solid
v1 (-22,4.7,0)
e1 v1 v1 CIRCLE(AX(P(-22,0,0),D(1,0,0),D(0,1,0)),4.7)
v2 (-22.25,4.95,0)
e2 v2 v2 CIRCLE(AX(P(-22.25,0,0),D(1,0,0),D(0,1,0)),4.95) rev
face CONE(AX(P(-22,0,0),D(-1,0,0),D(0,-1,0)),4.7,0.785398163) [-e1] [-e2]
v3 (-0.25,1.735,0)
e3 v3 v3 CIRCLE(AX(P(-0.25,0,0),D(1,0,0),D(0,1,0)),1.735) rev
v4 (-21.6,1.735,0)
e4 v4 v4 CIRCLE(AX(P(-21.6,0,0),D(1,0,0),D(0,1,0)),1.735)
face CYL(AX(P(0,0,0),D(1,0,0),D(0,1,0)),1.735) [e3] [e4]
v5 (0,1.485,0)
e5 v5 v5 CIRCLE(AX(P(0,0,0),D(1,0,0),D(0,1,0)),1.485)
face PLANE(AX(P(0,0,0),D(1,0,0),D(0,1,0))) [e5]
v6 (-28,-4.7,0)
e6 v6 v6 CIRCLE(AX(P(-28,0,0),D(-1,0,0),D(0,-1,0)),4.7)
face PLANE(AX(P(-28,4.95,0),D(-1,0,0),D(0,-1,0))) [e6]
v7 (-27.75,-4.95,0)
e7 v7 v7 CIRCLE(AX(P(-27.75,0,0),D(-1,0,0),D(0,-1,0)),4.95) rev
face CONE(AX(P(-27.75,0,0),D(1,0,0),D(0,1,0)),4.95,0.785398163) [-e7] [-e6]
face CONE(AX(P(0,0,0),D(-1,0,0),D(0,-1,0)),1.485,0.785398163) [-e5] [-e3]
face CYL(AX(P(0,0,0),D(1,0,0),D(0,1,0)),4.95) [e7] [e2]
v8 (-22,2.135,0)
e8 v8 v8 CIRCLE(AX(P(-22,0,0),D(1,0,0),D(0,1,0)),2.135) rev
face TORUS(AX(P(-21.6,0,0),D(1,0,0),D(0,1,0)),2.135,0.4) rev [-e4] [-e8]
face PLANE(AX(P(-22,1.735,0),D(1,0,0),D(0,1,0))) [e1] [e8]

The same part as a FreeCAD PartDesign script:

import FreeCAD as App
import Part
import Sketcher


def edges_at(feature, points):
    """Names of the edges that pass closest to the given points."""
    edges = feature.Shape.Edges
    near = lambda p: min(range(len(edges)), key=lambda i: edges[i].distToShape(Part.Vertex(*p))[0])
    return sorted({f"Edge{near(p) + 1}" for p in points})


def add_polygon(sketch, points):
    """Adds a closed chain of lines whose ends are joined by coincident constraints."""
    first, n = sketch.GeometryCount, len(points)
    for a, b in zip(points, points[1:] + points[:1]):
        sketch.addGeometry(Part.LineSegment(App.Vector(*a, 0), App.Vector(*b, 0)), False)
    for i in range(n):
        sketch.addConstraint(Sketcher.Constraint("Coincident", first + i, 2, first + (i + 1) % n, 1))

doc = App.newDocument("Part")
body = doc.addObject("PartDesign::Body", "Body")

sketch1 = body.newObject("Sketcher::SketchObject", "Sketch")
sketch1.AttachmentSupport = (doc.getObject("XY_Plane"), [""])
sketch1.MapMode = "FlatFace"
add_polygon(sketch1, [(0, 0), (0, 1.735), (-22, 1.735), (-22, 4.95), (-28, 4.95), (-28, 0)])
sketch1.addConstraint([
    Sketcher.Constraint("Vertical", 0),
    Sketcher.Constraint("Horizontal", 1),
    Sketcher.Constraint("Vertical", 2),
    Sketcher.Constraint("Horizontal", 3),
    Sketcher.Constraint("Vertical", 4),
    Sketcher.Constraint("Horizontal", 5),
    Sketcher.Constraint("Coincident", 5, 2, -1, 1),
    Sketcher.Constraint("DistanceX", 1, 2, 1, 1, 22.0),
    Sketcher.Constraint("DistanceX", 3, 2, 3, 1, 6.0),
    Sketcher.Constraint("DistanceY", 4, 2, 4, 1, 4.95),
    Sketcher.Constraint("DistanceY", 0, 1, 0, 2, 1.735),
])
revolution = body.newObject("PartDesign::Revolution", "Revolution")
revolution.Profile = sketch1
revolution.ReferenceAxis = (sketch1, ["H_Axis"])
revolution.Angle = 360
doc.recompute()

chamfer = body.newObject("PartDesign::Chamfer", "Chamfer")
chamfer.Base = (revolution, edges_at(revolution, [(0, -1.735, 0), (-22, -4.95, 0), (-28, -4.95, 0)]))
chamfer.Size = 0.25
doc.recompute()

fillet = body.newObject("PartDesign::Fillet", "Fillet")
fillet.Base = (chamfer, edges_at(chamfer, [(-22, -1.735, 0)]))
fillet.Radius = 0.4

doc.recompute()
